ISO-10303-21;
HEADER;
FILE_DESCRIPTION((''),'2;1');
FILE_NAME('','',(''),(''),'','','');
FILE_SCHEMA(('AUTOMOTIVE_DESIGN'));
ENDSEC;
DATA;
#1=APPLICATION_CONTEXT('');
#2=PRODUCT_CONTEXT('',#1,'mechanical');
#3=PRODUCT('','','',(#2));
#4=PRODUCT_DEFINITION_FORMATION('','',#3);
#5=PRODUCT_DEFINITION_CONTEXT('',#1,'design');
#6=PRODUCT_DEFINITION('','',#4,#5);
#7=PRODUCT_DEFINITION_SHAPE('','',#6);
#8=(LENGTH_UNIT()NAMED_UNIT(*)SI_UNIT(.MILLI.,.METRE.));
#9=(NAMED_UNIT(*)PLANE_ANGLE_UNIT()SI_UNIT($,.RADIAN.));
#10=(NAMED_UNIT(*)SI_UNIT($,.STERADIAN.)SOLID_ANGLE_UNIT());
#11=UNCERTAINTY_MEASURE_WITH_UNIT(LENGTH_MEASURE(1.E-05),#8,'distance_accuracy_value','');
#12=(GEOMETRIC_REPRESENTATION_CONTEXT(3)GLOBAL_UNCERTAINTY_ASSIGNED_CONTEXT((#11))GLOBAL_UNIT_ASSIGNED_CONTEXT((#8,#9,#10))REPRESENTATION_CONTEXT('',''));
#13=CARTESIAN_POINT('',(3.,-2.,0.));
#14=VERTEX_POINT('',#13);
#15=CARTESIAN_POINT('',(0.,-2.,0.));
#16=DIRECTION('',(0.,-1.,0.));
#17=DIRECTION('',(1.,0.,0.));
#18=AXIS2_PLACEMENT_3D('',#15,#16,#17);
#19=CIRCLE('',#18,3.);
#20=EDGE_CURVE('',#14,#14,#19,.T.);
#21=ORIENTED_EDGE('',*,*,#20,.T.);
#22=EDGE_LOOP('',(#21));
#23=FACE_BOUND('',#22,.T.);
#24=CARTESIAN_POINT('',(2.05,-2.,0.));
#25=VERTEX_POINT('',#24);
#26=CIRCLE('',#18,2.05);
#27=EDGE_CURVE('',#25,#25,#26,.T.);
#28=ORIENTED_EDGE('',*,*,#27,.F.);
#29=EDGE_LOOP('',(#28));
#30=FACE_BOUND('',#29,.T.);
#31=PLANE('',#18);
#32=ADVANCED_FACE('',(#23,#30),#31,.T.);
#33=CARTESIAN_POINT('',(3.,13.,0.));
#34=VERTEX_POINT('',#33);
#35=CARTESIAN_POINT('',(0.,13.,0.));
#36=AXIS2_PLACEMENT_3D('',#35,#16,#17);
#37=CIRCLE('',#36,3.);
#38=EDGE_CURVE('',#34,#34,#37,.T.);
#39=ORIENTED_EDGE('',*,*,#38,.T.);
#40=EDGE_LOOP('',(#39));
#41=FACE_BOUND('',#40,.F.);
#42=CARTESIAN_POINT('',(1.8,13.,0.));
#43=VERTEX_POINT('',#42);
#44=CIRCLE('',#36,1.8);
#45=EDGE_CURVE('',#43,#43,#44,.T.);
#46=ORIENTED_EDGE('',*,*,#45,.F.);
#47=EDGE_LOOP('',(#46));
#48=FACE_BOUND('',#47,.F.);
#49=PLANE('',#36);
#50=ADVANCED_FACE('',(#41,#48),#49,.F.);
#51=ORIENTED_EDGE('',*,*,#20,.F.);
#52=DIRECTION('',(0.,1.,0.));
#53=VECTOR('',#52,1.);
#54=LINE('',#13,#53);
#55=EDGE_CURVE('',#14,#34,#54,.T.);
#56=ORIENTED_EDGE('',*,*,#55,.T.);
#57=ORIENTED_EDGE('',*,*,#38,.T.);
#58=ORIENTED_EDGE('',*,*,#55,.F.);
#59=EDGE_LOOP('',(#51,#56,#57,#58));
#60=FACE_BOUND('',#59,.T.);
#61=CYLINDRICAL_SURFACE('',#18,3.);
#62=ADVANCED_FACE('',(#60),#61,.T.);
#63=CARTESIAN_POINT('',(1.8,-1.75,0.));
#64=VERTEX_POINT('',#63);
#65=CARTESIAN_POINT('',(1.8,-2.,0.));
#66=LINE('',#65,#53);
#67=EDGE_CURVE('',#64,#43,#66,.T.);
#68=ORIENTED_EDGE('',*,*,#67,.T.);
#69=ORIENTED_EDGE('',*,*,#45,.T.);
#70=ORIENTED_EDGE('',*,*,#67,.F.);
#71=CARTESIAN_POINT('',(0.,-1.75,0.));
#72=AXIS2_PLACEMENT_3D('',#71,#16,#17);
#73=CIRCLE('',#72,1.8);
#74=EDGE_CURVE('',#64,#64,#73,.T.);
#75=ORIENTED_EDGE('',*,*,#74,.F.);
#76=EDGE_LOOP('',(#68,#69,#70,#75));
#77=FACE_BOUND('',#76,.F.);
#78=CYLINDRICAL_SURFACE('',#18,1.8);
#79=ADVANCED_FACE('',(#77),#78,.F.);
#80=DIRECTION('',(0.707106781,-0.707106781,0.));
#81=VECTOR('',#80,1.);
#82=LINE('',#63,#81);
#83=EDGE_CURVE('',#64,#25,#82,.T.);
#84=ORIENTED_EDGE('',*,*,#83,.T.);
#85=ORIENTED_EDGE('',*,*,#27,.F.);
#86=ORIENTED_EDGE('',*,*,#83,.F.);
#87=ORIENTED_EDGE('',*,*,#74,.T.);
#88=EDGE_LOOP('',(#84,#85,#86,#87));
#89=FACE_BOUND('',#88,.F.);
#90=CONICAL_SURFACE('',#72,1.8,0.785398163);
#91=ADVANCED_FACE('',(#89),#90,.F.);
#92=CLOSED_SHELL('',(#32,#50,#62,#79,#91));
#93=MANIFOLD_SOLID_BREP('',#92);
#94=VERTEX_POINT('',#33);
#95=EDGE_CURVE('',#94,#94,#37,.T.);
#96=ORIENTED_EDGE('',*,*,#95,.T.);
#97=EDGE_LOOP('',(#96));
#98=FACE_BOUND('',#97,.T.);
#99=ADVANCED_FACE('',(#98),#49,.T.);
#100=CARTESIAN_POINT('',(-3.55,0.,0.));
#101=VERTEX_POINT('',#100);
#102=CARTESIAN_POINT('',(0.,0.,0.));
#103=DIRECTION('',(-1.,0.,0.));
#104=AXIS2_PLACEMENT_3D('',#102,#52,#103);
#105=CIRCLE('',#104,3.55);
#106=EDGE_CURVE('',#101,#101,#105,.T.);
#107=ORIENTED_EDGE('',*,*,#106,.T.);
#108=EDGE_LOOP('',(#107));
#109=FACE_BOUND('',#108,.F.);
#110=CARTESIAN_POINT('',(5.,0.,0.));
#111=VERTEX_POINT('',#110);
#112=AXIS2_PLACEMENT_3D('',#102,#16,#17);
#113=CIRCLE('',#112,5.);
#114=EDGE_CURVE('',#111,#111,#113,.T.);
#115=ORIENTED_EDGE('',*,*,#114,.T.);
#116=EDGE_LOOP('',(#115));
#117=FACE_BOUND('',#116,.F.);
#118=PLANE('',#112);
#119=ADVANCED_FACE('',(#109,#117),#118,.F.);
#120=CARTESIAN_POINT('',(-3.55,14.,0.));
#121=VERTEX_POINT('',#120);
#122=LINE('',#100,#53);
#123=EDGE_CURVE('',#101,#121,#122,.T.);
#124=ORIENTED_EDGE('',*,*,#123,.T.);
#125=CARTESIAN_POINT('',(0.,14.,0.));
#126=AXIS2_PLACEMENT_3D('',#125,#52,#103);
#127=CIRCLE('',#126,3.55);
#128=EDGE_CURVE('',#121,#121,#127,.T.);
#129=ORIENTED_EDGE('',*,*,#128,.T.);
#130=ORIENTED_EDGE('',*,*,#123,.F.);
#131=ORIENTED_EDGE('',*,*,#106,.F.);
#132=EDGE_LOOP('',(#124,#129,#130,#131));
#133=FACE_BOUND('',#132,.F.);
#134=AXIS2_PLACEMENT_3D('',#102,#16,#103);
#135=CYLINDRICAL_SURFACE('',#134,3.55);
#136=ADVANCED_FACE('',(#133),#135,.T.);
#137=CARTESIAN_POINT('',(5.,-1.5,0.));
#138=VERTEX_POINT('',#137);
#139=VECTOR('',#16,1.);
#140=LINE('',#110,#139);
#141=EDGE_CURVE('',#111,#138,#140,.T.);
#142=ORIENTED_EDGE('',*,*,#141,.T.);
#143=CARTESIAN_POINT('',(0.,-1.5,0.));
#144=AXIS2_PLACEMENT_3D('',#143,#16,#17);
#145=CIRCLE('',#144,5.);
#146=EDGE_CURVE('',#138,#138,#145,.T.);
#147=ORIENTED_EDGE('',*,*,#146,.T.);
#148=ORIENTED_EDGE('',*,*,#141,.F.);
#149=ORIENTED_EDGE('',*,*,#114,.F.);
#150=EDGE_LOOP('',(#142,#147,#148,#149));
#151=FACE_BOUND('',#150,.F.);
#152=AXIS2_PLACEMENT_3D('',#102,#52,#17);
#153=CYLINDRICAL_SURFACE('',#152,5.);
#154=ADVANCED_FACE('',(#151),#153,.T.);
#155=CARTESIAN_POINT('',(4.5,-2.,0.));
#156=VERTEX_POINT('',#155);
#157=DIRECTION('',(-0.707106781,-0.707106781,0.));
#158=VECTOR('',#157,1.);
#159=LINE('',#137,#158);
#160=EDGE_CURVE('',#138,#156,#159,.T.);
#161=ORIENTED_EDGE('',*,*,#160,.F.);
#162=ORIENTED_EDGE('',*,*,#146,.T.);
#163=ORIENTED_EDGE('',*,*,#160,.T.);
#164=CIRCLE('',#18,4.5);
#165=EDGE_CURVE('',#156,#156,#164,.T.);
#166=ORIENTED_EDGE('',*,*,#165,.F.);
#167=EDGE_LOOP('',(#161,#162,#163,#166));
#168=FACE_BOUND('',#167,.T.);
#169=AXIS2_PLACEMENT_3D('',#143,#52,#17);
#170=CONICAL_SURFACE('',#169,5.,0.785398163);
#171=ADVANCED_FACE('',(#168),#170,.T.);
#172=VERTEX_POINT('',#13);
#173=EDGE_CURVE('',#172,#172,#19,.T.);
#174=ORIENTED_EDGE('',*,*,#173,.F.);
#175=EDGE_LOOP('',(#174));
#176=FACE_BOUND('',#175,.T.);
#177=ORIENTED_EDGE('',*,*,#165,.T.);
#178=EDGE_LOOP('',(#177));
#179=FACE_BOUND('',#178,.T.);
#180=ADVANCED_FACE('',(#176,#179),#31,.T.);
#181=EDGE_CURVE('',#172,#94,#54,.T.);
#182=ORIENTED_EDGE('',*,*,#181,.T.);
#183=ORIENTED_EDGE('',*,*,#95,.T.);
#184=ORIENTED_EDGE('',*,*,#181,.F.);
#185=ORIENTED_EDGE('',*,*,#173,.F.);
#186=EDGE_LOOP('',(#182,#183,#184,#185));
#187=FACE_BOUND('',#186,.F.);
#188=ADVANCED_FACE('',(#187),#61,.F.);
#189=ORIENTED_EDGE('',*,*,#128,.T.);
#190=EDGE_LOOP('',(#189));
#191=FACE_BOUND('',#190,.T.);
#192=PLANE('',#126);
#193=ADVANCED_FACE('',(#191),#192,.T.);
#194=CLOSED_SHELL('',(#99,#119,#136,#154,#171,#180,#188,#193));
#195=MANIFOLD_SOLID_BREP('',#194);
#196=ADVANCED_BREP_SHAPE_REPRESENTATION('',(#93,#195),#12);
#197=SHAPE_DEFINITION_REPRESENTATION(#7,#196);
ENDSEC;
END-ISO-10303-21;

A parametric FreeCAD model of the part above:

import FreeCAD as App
import Part
import Sketcher
from FreeCAD import Vector
Q = App.Units.Quantity


def edges_at(feature, points):
    """Names of the edges that pass closest to the given points."""
    edges = feature.Shape.Edges
    near = lambda p: min(range(len(edges)), key=lambda i: edges[i].distToShape(Part.Vertex(*p))[0])
    return sorted({f"Edge{near(p) + 1}" for p in points})

doc = App.newDocument("Part")
body = doc.addObject("PartDesign::Body", "Body")

sketch1 = body.newObject("Sketcher::SketchObject", "Sketch")
sketch1.AttachmentSupport = (doc.getObject("XZ_Plane"), [""])
sketch1.MapMode = "FlatFace"
sketch1.addGeometry(Part.Circle(Vector(0, 0, 0), Vector(0, 0, 1), 5), False)
sketch1.addConstraint([
    Sketcher.Constraint("Coincident", 0, 3, -1, 1),
    Sketcher.Constraint("Diameter", 0, Q("10 mm")),
])
pad1 = body.newObject("PartDesign::Pad", "Pad")
pad1.Profile = sketch1
pad1.Length = 2

sketch2 = body.newObject("Sketcher::SketchObject", "Sketch001")
sketch2.AttachmentSupport = (doc.getObject("XZ_Plane"), [""])
sketch2.MapMode = "FlatFace"
sketch2.addGeometry(Part.Circle(Vector(0, 0, 0), Vector(0, 0, 1), 3.55), False)
sketch2.addConstraint([
    Sketcher.Constraint("Coincident", 0, 3, -1, 1),
    Sketcher.Constraint("Diameter", 0, Q("7.1 mm")),
])
pad2 = body.newObject("PartDesign::Pad", "Pad001")
pad2.Profile = sketch2
pad2.Length = 14
pad2.Reversed = True

sketch3 = body.newObject("Sketcher::SketchObject", "Sketch002")
sketch3.AttachmentSupport = (doc.getObject("XZ_Plane"), [""])
sketch3.MapMode = "FlatFace"
sketch3.AttachmentOffset = App.Placement(Vector(0, 0, 2), App.Rotation())
sketch3.addGeometry(Part.Circle(Vector(0, 0, 0), Vector(0, 0, 1), 3), False)
sketch3.addConstraint([
    Sketcher.Constraint("Coincident", 0, 3, -1, 1),
    Sketcher.Constraint("Diameter", 0, Q("6 mm")),
])
pocket1 = body.newObject("PartDesign::Pocket", "Pocket")
pocket1.Profile = sketch3
pocket1.Length = 15
doc.recompute()

chamfer = body.newObject("PartDesign::Chamfer", "Chamfer")
chamfer.Base = (pocket1, edges_at(pocket1, [(-5, -2, 0)]))
chamfer.Size = 0.5
body2 = doc.addObject("PartDesign::Body", "Body001")

sketch4 = body2.newObject("Sketcher::SketchObject", "Sketch003")
sketch4.AttachmentSupport = (doc.getObject("XZ_Plane001"), [""])
sketch4.MapMode = "FlatFace"
sketch4.AttachmentOffset = App.Placement(Vector(0, 0, 2), App.Rotation())
sketch4.addGeometry([
    Part.Circle(Vector(0, 0, 0), Vector(0, 0, 1), 3),
    Part.Circle(Vector(0, 0, 0), Vector(0, 0, 1), 1.8),
], False)
sketch4.addConstraint([
    Sketcher.Constraint("Coincident", 0, 3, -1, 1),
    Sketcher.Constraint("Coincident", 1, 3, -1, 1),
    Sketcher.Constraint("Diameter", 0, Q("6 mm")),
    Sketcher.Constraint("Diameter", 1, Q("3.6 mm")),
])
pad3 = body2.newObject("PartDesign::Pad", "Pad002")
pad3.Profile = sketch4
pad3.Length = 15
pad3.Reversed = True
doc.recompute()

chamfer2 = body2.newObject("PartDesign::Chamfer", "Chamfer001")
chamfer2.Base = (pad3, edges_at(pad3, [(-1.8, -2, 0)]))
chamfer2.Size = 0.25

doc.recompute()
